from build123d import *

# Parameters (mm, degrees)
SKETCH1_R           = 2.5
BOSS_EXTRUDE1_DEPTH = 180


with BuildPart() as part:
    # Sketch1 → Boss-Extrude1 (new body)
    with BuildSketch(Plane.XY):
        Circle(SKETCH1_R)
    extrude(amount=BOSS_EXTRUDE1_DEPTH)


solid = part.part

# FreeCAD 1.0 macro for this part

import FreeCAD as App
import Part
import Sketcher

V = App.Vector

doc = App.newDocument("Part")
params = doc.addObject("Spreadsheet::Sheet", "Params")
for row, (alias, value) in enumerate([
    ("sketch1_diameter", "5 mm"),
    ("pad1_length", "180 mm"),
], start=1):
    params.set(f"A{row}", alias)
    params.set(f"B{row}", "=" + value)
    params.setAlias(f"B{row}", alias)

body = doc.addObject("PartDesign::Body", "Body")

# Sketch on XY plane
sketch1 = body.newObject("Sketcher::SketchObject", "Sketch")
sketch1.AttachmentSupport = (doc.getObject("XY_Plane"), [""])
sketch1.MapMode = "FlatFace"
sketch1.addGeometry(Part.Circle(V(0, 0, 0), V(0, 0, 1), 2.5), False)
sketch1.addConstraint([
    Sketcher.Constraint("Coincident", 0, 3, -1, 1),
    Sketcher.Constraint("Diameter", 0, 5.0),
])
sketch1.setExpression("Constraints[1]", "Params.sketch1_diameter")
pad1 = body.newObject("PartDesign::Pad", "Pad")
pad1.Profile = sketch1
pad1.setExpression("Length", "Params.pad1_length")

doc.recompute()
